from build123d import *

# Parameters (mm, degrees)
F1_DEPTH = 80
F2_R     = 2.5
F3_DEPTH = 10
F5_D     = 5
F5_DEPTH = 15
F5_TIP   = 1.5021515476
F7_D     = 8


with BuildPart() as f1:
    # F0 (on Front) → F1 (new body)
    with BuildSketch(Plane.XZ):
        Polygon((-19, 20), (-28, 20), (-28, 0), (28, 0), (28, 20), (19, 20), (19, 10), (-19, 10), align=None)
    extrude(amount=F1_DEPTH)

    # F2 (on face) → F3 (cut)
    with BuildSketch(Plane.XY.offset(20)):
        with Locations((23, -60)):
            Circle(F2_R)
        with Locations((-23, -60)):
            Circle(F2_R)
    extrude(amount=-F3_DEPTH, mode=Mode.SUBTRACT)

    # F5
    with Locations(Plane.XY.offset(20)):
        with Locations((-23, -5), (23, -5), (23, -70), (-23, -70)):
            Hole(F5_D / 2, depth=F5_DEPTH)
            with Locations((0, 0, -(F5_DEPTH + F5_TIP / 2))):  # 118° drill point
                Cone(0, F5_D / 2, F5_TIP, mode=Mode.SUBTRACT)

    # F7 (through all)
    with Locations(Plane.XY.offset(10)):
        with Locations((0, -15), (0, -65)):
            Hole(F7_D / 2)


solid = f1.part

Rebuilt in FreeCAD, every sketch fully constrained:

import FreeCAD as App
import Part
import Sketcher

doc = App.newDocument("Part")
body = doc.addObject("PartDesign::Body", "Body")

sketch1 = body.newObject("Sketcher::SketchObject", "Sketch")
sketch1.AttachmentSupport = (doc.getObject("XZ_Plane"), [""])
sketch1.MapMode = "FlatFace"
sketch1.addGeometry([
    Part.LineSegment(App.Vector(-19, 20, 0), App.Vector(-28, 20, 0)),
    Part.LineSegment(App.Vector(-28, 20, 0), App.Vector(-28, 0, 0)),
    Part.LineSegment(App.Vector(-28, 0, 0), App.Vector(28, 0, 0)),
    Part.LineSegment(App.Vector(28, 0, 0), App.Vector(28, 20, 0)),
    Part.LineSegment(App.Vector(28, 20, 0), App.Vector(19, 20, 0)),
    Part.LineSegment(App.Vector(19, 20, 0), App.Vector(19, 10, 0)),
    Part.LineSegment(App.Vector(19, 10, 0), App.Vector(-19, 10, 0)),
    Part.LineSegment(App.Vector(-19, 10, 0), App.Vector(-19, 20, 0)),
], False)
sketch1.addConstraint([
    Sketcher.Constraint("Coincident", 0, 2, 1, 1),
    Sketcher.Constraint("Coincident", 1, 2, 2, 1),
    Sketcher.Constraint("Coincident", 2, 2, 3, 1),
    Sketcher.Constraint("Coincident", 3, 2, 4, 1),
    Sketcher.Constraint("Coincident", 4, 2, 5, 1),
    Sketcher.Constraint("Coincident", 5, 2, 6, 1),
    Sketcher.Constraint("Coincident", 6, 2, 7, 1),
    Sketcher.Constraint("Coincident", 7, 2, 0, 1),
    Sketcher.Constraint("Horizontal", 0),
    Sketcher.Constraint("Vertical", 1),
    Sketcher.Constraint("Horizontal", 2),
    Sketcher.Constraint("Vertical", 3),
    Sketcher.Constraint("Horizontal", 4),
    Sketcher.Constraint("Vertical", 5),
    Sketcher.Constraint("Horizontal", 6),
    Sketcher.Constraint("Vertical", 7),
    Sketcher.Constraint("Symmetric", 1, 2, 2, 2, -1, 1),
    Sketcher.Constraint("Symmetric", 4, 2, 7, 2, -2),
    Sketcher.Constraint("DistanceX", 0, 2, 0, 1, 9.0),
    Sketcher.Constraint("DistanceX", 2, 1, 2, 2, 56.0),
    Sketcher.Constraint("DistanceY", 1, 2, 1, 1, 20.0),
    Sketcher.Constraint("DistanceY", 5, 2, 5, 1, 10.0),
])
pad1 = body.newObject("PartDesign::Pad", "Pad")
pad1.Profile = sketch1
pad1.Length = 80

sketch2 = body.newObject("Sketcher::SketchObject", "Sketch001")
sketch2.AttachmentSupport = (doc.getObject("XY_Plane"), [""])
sketch2.MapMode = "FlatFace"
sketch2.AttachmentOffset = App.Placement(App.Vector(0, 0, 20), App.Rotation())
sketch2.addGeometry([
    Part.Circle(App.Vector(23, -60, 0), App.Vector(0, 0, 1), 2.5),
    Part.Circle(App.Vector(-23, -60, 0), App.Vector(0, 0, 1), 2.5),
], False)
sketch2.addConstraint([
    Sketcher.Constraint("Equal", 0, 1),
    Sketcher.Constraint("Symmetric", 0, 3, 1, 3, -2),
    Sketcher.Constraint("Diameter", 0, 5.0),
    Sketcher.Constraint("DistanceX", -1, 1, 0, 3, 23.0),
    Sketcher.Constraint("DistanceY", 0, 3, -1, 1, 60.0),
])
pocket1 = body.newObject("PartDesign::Pocket", "Pocket")
pocket1.Profile = sketch2
pocket1.Length = 10

sketch3 = body.newObject("Sketcher::SketchObject", "Sketch002")
sketch3.AttachmentSupport = (doc.getObject("XY_Plane"), [""])
sketch3.MapMode = "FlatFace"
sketch3.AttachmentOffset = App.Placement(App.Vector(0, 0, 20), App.Rotation())
sketch3.addGeometry([
    Part.Circle(App.Vector(-23, -5, 0), App.Vector(0, 0, 1), 2.5),
    Part.Circle(App.Vector(23, -5, 0), App.Vector(0, 0, 1), 2.5),
    Part.Circle(App.Vector(23, -70, 0), App.Vector(0, 0, 1), 2.5),
    Part.Circle(App.Vector(-23, -70, 0), App.Vector(0, 0, 1), 2.5),
], False)
sketch3.addConstraint([
    Sketcher.Constraint("Equal", 0, 1),
    Sketcher.Constraint("Equal", 1, 2),
    Sketcher.Constraint("Equal", 2, 3),
    Sketcher.Constraint("Symmetric", 0, 3, 1, 3, -2),
    Sketcher.Constraint("Symmetric", 2, 3, 3, 3, -2),
    Sketcher.Constraint("Vertical", 1, 3, 2, 3),
    Sketcher.Constraint("Diameter", 0, 5.0),
    Sketcher.Constraint("DistanceX", 0, 3, -1, 1, 23.0),
    Sketcher.Constraint("DistanceY", 0, 3, -1, 1, 5.0),
    Sketcher.Constraint("DistanceY", 2, 3, -1, 1, 70.0),
])
doc.recompute()
hole = body.newObject("PartDesign::Hole", "Hole")
hole.Profile = sketch3
hole.ThreadType = "None"
hole.Diameter = 5
hole.DepthType = "Dimension"
hole.Depth = 15
hole.DrillPoint = "Angled"
hole.DrillPointAngle = 118

sketch4 = body.newObject("Sketcher::SketchObject", "Sketch003")
sketch4.AttachmentSupport = (doc.getObject("XY_Plane"), [""])
sketch4.MapMode = "FlatFace"
sketch4.AttachmentOffset = App.Placement(App.Vector(0, 0, 10), App.Rotation())
sketch4.addGeometry([
    Part.Circle(App.Vector(0, -15, 0), App.Vector(0, 0, 1), 4),
    Part.Circle(App.Vector(0, -65, 0), App.Vector(0, 0, 1), 4),
], False)
sketch4.addConstraint([
    Sketcher.Constraint("Equal", 0, 1),
    Sketcher.Constraint("PointOnObject", 0, 3, -2),
    Sketcher.Constraint("PointOnObject", 1, 3, -2),
    Sketcher.Constraint("Diameter", 0, 8.0),
    Sketcher.Constraint("DistanceY", 0, 3, -1, 1, 15.0),
    Sketcher.Constraint("DistanceY", 1, 3, -1, 1, 65.0),
])
doc.recompute()
hole2 = body.newObject("PartDesign::Hole", "Hole001")
hole2.Profile = sketch4
hole2.ThreadType = "None"
hole2.Diameter = 8
hole2.DepthType = "ThroughAll"

doc.recompute()
